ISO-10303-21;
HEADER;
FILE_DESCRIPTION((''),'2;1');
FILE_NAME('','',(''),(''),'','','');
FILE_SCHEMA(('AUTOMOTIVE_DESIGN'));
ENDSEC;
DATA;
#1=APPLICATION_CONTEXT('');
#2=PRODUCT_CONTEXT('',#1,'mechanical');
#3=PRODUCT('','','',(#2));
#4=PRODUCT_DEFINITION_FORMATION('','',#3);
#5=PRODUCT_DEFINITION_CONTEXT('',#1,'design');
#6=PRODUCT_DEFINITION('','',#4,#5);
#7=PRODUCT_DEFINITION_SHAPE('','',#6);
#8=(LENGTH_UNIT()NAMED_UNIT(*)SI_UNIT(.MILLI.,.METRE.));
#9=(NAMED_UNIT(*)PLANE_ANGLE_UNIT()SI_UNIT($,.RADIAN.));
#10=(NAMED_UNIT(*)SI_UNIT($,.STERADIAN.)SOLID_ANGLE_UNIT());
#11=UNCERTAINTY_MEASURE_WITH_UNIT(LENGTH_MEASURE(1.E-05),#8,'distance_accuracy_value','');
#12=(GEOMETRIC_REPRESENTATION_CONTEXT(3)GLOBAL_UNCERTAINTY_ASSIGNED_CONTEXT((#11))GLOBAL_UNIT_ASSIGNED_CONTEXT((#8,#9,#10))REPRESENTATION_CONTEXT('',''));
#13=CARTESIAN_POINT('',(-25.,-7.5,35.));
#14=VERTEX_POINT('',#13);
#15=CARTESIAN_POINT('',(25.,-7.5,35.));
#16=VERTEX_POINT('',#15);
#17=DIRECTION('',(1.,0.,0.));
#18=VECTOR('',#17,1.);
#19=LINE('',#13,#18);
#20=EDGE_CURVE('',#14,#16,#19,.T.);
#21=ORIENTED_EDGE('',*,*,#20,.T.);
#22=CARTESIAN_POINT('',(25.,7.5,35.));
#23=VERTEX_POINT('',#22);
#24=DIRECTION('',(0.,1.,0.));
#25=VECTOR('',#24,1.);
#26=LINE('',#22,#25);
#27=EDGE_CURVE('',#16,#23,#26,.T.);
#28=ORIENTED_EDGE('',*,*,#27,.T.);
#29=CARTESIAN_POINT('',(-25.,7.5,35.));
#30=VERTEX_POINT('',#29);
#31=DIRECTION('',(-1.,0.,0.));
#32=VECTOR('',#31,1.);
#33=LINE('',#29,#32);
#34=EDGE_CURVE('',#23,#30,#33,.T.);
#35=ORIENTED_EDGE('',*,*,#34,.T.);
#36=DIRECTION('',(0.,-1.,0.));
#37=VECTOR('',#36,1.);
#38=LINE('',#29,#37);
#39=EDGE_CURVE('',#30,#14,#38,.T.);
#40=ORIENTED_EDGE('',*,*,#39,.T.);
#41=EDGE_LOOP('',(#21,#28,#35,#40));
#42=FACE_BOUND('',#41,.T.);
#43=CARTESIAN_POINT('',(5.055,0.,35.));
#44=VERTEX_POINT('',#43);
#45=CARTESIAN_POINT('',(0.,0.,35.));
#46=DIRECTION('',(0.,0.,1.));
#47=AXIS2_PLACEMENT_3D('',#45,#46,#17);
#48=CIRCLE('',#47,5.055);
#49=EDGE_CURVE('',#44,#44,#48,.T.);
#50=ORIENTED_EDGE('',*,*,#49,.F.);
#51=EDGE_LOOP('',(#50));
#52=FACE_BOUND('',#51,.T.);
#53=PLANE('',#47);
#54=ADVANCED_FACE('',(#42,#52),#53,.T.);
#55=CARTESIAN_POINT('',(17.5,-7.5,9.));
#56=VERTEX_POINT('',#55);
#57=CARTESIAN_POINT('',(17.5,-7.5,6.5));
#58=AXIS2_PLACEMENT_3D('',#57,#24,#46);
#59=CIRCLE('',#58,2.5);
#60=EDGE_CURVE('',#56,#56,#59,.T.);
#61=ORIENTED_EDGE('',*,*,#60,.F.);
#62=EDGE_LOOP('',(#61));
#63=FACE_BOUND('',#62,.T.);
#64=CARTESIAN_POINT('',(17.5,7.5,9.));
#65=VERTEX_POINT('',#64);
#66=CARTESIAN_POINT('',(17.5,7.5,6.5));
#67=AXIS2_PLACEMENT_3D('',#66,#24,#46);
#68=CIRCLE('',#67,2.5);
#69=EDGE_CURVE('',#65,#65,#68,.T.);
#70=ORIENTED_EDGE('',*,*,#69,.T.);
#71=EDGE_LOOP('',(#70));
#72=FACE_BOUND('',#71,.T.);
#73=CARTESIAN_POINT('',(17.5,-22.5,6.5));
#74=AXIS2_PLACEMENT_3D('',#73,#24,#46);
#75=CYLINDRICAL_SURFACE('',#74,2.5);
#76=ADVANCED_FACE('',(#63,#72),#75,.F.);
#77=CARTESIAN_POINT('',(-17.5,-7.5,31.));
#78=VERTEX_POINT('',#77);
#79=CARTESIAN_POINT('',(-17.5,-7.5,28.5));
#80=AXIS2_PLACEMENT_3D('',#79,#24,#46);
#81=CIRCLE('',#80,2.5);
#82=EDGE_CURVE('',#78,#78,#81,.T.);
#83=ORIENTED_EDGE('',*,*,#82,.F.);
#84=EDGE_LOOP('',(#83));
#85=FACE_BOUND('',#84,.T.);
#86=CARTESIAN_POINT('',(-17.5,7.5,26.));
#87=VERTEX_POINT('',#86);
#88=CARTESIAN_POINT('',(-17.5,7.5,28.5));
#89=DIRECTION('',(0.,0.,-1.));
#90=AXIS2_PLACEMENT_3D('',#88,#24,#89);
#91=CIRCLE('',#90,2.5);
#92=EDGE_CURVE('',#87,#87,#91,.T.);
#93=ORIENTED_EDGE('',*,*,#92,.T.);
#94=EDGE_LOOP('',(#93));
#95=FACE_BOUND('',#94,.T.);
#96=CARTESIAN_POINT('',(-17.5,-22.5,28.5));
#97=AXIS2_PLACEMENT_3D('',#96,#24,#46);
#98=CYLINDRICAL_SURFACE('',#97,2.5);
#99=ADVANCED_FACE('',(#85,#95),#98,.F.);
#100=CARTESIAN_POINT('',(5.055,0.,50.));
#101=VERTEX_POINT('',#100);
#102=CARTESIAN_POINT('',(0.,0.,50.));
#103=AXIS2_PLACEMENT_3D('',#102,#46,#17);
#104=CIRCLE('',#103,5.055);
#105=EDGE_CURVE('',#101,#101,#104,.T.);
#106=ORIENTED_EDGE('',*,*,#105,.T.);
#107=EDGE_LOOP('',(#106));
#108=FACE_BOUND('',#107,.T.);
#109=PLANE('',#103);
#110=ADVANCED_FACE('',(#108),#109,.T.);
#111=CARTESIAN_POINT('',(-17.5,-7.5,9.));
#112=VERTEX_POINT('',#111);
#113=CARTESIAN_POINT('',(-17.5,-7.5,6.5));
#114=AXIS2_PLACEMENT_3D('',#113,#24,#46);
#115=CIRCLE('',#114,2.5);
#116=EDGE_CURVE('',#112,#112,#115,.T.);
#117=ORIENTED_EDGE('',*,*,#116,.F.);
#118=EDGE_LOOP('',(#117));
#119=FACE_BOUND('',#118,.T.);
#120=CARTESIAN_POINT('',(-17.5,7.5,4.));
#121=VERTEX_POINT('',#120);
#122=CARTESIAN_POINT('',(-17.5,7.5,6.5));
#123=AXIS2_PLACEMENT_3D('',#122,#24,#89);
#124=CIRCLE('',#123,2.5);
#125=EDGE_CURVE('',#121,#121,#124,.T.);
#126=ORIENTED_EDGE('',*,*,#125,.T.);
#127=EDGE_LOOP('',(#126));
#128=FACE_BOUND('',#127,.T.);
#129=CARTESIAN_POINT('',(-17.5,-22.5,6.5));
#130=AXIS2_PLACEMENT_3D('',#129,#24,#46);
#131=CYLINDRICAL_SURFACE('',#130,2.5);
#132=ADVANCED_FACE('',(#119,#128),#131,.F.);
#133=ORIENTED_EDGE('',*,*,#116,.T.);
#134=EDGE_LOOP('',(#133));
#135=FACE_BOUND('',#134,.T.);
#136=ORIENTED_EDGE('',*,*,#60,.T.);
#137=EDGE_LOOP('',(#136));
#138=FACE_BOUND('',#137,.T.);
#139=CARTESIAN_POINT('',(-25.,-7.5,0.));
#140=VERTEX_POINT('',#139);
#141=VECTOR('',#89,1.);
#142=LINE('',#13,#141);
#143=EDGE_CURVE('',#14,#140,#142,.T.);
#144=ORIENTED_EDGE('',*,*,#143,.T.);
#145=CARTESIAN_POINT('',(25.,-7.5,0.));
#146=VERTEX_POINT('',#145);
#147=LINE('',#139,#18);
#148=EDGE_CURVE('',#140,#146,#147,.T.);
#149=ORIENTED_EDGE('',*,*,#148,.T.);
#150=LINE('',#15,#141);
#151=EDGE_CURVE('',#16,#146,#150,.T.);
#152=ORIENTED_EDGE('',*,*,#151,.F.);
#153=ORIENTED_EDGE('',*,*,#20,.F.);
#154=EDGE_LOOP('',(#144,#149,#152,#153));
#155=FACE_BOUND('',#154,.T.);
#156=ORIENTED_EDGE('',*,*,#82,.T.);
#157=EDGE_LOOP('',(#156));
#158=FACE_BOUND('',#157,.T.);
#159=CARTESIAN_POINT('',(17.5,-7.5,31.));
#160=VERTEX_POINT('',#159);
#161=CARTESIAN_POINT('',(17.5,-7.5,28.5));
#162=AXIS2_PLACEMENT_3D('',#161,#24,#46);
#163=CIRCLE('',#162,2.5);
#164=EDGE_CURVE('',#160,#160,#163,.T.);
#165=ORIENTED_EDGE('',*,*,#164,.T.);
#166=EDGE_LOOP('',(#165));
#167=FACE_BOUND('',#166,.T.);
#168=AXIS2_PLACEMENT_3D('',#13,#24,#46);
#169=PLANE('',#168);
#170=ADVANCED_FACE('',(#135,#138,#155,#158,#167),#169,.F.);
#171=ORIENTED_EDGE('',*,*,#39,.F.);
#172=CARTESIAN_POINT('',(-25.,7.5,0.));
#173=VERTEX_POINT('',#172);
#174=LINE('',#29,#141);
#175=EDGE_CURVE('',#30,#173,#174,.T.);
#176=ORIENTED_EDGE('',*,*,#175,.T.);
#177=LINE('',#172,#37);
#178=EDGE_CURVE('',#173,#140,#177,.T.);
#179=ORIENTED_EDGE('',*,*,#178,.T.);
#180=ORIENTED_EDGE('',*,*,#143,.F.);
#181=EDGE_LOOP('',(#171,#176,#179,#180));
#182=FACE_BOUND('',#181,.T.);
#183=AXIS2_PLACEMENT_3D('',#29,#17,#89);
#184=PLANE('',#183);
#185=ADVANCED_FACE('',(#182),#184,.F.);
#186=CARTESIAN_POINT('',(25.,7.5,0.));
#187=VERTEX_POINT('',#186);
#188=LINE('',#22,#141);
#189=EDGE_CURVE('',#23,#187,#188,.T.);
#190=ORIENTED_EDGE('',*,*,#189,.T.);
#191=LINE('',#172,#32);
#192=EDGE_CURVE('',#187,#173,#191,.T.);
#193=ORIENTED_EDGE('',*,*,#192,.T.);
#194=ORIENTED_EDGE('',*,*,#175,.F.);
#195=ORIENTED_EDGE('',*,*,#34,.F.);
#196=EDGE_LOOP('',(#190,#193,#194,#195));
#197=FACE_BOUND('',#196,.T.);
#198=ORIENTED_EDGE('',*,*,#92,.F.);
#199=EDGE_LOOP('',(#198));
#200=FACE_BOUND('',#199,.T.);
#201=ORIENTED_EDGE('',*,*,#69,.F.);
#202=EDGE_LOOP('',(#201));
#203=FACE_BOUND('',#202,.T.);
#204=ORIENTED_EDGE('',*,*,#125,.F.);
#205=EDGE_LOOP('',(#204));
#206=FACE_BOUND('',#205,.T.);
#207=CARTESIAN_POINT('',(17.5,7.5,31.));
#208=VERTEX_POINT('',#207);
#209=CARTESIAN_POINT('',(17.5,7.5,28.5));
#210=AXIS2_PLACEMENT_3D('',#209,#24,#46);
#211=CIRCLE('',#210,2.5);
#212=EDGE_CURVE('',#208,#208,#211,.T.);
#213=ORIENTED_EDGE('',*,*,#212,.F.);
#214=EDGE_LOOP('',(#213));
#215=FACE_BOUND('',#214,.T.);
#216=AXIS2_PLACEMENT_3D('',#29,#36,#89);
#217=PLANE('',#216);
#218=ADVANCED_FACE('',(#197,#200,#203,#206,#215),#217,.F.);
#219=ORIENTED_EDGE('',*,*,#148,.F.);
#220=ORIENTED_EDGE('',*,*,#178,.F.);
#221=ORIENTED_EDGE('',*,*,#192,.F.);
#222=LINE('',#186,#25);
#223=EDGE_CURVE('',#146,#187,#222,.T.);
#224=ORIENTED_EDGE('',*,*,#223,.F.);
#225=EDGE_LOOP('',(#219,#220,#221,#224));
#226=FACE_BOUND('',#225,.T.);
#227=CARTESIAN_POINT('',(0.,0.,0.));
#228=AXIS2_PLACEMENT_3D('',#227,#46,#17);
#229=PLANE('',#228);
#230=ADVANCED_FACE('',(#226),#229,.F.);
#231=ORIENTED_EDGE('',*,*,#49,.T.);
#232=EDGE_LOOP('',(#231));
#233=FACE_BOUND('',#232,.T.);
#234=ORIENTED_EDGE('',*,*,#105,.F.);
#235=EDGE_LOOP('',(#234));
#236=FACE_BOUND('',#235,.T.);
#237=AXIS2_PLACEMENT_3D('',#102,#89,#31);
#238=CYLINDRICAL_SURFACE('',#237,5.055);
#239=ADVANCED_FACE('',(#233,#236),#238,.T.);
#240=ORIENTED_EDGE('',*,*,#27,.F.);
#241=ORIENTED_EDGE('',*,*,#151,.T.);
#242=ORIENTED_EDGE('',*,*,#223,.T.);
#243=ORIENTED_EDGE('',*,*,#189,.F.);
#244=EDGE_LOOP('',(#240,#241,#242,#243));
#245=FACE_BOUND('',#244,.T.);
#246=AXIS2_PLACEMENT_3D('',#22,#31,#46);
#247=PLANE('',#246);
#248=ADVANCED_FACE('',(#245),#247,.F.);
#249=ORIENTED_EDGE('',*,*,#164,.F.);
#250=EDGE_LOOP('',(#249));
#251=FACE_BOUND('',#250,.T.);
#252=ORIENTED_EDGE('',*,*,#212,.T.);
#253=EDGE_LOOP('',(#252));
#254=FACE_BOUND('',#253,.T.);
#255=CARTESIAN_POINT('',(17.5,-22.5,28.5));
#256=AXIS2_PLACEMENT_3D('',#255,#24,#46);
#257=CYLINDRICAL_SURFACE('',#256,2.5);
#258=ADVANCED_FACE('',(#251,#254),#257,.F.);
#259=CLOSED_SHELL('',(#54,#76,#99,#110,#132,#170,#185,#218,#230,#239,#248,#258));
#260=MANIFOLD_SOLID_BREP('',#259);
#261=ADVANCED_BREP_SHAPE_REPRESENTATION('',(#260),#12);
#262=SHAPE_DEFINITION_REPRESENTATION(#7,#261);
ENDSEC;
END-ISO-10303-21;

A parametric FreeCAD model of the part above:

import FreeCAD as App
import Part
import Sketcher

doc = App.newDocument("Part")
body = doc.addObject("PartDesign::Body", "Body")

# Sketch on XY plane
sketch1 = doc.addObject("Sketcher::SketchObject", "Sketch")
body.addObject(sketch1)
sketch1.AttachmentSupport = (doc.XY_Plane, [""])
sketch1.MapMode = "FlatFace"
sketch1.addGeometry([
    Part.LineSegment(App.Vector(-25, 8, 0), App.Vector(-25, -8, 0)),
    Part.LineSegment(App.Vector(-25, -8, 0), App.Vector(25, -8, 0)),
    Part.LineSegment(App.Vector(25, -8, 0), App.Vector(25, 8, 0)),
    Part.LineSegment(App.Vector(25, 8, 0), App.Vector(-25, 8, 0)),
], False)
sketch1.addConstraint([
    Sketcher.Constraint("Coincident", 0, 2, 1, 1),
    Sketcher.Constraint("Coincident", 1, 2, 2, 1),
    Sketcher.Constraint("Coincident", 2, 2, 3, 1),
    Sketcher.Constraint("Coincident", 3, 2, 0, 1),
    Sketcher.Constraint("Vertical", 0),
    Sketcher.Constraint("Horizontal", 1),
    Sketcher.Constraint("Vertical", 2),
    Sketcher.Constraint("Horizontal", 3),
    Sketcher.Constraint("Symmetric", 0, 2, 2, 2, -1, 1),
    Sketcher.Constraint("DistanceX", 1, 1, 1, 2, 50.0),
    Sketcher.Constraint("DistanceY", 0, 2, 0, 1, 15.0),
])
pad1 = doc.addObject("PartDesign::Pad", "Pad")
body.addObject(pad1)
pad1.Profile = sketch1
pad1.Length = 35

# Sketch on XZ plane
sketch2 = doc.addObject("Sketcher::SketchObject", "Sketch001")
body.addObject(sketch2)
sketch2.AttachmentSupport = (doc.XZ_Plane, [""])
sketch2.MapMode = "FlatFace"
sketch2.AttachmentOffset = App.Placement(App.Vector(0, 0, -7.5), App.Rotation())
sketch2.addGeometry([
    Part.Circle(App.Vector(17.5, 6.5, 0), App.Vector(0, 0, 1), 2.5),
    Part.Circle(App.Vector(17.5, 28.5, 0), App.Vector(0, 0, 1), 2.5),
    Part.Circle(App.Vector(-17.5, 28.5, 0), App.Vector(0, 0, 1), 2.5),
    Part.Circle(App.Vector(-17.5, 6.5, 0), App.Vector(0, 0, 1), 2.5),
], False)
sketch2.addConstraint([
    Sketcher.Constraint("Equal", 0, 1),
    Sketcher.Constraint("Equal", 1, 2),
    Sketcher.Constraint("Equal", 2, 3),
    Sketcher.Constraint("Symmetric", 1, 3, 2, 3, -2),
    Sketcher.Constraint("Symmetric", 0, 3, 3, 3, -2),
    Sketcher.Constraint("Vertical", 0, 3, 1, 3),
    Sketcher.Constraint("Diameter", 0, 5.0),
    Sketcher.Constraint("DistanceY", 0, 3, 1, 3, 22.0),
    Sketcher.Constraint("DistanceX", 2, 3, 1, 3, 35.0),
    Sketcher.Constraint("DistanceY", -1, 1, 0, 3, 6.5),
])
pocket1 = doc.addObject("PartDesign::Pocket", "Pocket")
body.addObject(pocket1)
pocket1.Profile = sketch2
pocket1.Length = 30
pocket1.Reversed = True

# Sketch on XY plane
sketch3 = doc.addObject("Sketcher::SketchObject", "Sketch002")
body.addObject(sketch3)
sketch3.AttachmentSupport = (doc.XY_Plane, [""])
sketch3.MapMode = "FlatFace"
sketch3.AttachmentOffset = App.Placement(App.Vector(0, 0, 35), App.Rotation())
sketch3.addGeometry(Part.Circle(App.Vector(0, 0, 0), App.Vector(0, 0, 1), 5), False)
sketch3.addConstraint([
    Sketcher.Constraint("Coincident", 0, 3, -1, 1),
    Sketcher.Constraint("Diameter", 0, 10.11),
])
pad2 = doc.addObject("PartDesign::Pad", "Pad001")
body.addObject(pad2)
pad2.Profile = sketch3
pad2.Length = 15

doc.recompute()
